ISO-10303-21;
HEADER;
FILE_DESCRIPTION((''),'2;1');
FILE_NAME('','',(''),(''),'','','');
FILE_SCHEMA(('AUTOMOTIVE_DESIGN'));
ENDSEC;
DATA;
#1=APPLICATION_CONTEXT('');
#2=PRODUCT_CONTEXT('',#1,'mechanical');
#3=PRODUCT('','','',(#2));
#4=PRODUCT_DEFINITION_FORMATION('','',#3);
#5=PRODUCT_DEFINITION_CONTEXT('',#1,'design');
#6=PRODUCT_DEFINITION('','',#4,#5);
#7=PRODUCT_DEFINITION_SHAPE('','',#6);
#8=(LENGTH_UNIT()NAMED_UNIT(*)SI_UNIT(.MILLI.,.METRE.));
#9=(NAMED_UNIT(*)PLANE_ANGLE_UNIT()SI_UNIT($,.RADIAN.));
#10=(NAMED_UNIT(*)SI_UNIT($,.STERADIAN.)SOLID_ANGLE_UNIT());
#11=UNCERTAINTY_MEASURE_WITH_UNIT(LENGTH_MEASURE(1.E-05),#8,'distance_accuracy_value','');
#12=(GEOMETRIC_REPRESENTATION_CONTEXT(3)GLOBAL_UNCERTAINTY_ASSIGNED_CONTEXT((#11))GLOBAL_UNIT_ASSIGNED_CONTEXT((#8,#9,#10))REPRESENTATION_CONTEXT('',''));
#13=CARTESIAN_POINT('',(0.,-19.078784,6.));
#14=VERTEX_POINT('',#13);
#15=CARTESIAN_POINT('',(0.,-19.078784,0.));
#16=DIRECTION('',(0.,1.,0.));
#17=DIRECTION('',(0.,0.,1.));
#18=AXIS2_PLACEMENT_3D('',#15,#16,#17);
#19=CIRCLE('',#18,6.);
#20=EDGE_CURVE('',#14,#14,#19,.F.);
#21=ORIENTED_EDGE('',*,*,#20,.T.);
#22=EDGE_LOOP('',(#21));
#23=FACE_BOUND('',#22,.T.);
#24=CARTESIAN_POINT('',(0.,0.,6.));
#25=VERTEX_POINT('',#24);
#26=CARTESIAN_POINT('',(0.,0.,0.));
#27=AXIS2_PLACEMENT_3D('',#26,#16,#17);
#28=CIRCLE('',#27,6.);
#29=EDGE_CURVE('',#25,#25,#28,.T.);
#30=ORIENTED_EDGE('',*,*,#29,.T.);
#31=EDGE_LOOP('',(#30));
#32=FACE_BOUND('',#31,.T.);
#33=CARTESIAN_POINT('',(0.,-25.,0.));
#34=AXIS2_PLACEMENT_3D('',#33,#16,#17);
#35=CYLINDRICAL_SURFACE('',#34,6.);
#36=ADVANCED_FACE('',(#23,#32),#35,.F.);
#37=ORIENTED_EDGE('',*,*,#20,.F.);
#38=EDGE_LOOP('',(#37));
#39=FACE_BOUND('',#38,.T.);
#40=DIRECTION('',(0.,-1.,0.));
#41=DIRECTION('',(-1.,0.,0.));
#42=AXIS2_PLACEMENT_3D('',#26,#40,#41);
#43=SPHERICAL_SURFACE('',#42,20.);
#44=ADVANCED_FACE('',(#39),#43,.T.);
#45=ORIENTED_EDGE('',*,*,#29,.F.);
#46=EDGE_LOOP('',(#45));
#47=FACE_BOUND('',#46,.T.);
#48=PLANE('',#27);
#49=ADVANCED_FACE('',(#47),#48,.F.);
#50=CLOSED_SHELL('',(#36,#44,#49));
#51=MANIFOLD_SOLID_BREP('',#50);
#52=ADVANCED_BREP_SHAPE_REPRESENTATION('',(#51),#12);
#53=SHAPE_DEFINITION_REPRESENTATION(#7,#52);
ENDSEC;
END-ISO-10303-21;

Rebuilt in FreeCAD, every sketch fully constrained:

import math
import FreeCAD as App
import Part
import Sketcher
from FreeCAD import Vector
Q = App.Units.Quantity

doc = App.newDocument("Part")
body = doc.addObject("PartDesign::Body", "Body")

# Sketch on XY plane
sketch1 = body.newObject("Sketcher::SketchObject", "Sketch")
sketch1.AttachmentSupport = (doc.getObject("XY_Plane"), [""])
sketch1.MapMode = "FlatFace"
sketch1.addGeometry(Part.LineSegment(Vector(0, 20, 0), Vector(0, -20, 0)), False)
sketch1.addGeometry(Part.ArcOfCircle(Part.Circle(Vector(0, 0, 0), Vector(0, 0, 1), 20), math.radians(-90), math.radians(90)), False)
sketch1.addConstraint(Sketcher.Constraint("Coincident", 0, 1, 1, 2))
sketch1.addConstraint(Sketcher.Constraint("Coincident", 1, 1, 0, 2))
sketch1.addConstraint(Sketcher.Constraint("Vertical", 0))
sketch1.addConstraint(Sketcher.Constraint("Coincident", 1, 3, -1, 1))
sketch1.addConstraint(Sketcher.Constraint("PointOnObject", 0, 1, -2))
sketch1.addConstraint(Sketcher.Constraint("Radius", 1, Q("20 mm")))
revolution = body.newObject("PartDesign::Revolution", "Revolution")
revolution.Profile = sketch1
revolution.ReferenceAxis = (sketch1, ["V_Axis"])
revolution.Angle = 360

# Sketch on XZ plane
sketch2 = body.newObject("Sketcher::SketchObject", "Sketch001")
sketch2.AttachmentSupport = (doc.getObject("XZ_Plane"), [""])
sketch2.MapMode = "FlatFace"
sketch2.addGeometry(Part.Circle(Vector(0, 0, 0), Vector(0, 0, 1), 6), False)
sketch2.addConstraint(Sketcher.Constraint("Coincident", 0, 3, -1, 1))
sketch2.addConstraint(Sketcher.Constraint("Diameter", 0, Q("12 mm")))
pocket1 = body.newObject("PartDesign::Pocket", "Pocket")
pocket1.Profile = sketch2
pocket1.Length = 25
pocket1.Reversed = True

doc.recompute()
